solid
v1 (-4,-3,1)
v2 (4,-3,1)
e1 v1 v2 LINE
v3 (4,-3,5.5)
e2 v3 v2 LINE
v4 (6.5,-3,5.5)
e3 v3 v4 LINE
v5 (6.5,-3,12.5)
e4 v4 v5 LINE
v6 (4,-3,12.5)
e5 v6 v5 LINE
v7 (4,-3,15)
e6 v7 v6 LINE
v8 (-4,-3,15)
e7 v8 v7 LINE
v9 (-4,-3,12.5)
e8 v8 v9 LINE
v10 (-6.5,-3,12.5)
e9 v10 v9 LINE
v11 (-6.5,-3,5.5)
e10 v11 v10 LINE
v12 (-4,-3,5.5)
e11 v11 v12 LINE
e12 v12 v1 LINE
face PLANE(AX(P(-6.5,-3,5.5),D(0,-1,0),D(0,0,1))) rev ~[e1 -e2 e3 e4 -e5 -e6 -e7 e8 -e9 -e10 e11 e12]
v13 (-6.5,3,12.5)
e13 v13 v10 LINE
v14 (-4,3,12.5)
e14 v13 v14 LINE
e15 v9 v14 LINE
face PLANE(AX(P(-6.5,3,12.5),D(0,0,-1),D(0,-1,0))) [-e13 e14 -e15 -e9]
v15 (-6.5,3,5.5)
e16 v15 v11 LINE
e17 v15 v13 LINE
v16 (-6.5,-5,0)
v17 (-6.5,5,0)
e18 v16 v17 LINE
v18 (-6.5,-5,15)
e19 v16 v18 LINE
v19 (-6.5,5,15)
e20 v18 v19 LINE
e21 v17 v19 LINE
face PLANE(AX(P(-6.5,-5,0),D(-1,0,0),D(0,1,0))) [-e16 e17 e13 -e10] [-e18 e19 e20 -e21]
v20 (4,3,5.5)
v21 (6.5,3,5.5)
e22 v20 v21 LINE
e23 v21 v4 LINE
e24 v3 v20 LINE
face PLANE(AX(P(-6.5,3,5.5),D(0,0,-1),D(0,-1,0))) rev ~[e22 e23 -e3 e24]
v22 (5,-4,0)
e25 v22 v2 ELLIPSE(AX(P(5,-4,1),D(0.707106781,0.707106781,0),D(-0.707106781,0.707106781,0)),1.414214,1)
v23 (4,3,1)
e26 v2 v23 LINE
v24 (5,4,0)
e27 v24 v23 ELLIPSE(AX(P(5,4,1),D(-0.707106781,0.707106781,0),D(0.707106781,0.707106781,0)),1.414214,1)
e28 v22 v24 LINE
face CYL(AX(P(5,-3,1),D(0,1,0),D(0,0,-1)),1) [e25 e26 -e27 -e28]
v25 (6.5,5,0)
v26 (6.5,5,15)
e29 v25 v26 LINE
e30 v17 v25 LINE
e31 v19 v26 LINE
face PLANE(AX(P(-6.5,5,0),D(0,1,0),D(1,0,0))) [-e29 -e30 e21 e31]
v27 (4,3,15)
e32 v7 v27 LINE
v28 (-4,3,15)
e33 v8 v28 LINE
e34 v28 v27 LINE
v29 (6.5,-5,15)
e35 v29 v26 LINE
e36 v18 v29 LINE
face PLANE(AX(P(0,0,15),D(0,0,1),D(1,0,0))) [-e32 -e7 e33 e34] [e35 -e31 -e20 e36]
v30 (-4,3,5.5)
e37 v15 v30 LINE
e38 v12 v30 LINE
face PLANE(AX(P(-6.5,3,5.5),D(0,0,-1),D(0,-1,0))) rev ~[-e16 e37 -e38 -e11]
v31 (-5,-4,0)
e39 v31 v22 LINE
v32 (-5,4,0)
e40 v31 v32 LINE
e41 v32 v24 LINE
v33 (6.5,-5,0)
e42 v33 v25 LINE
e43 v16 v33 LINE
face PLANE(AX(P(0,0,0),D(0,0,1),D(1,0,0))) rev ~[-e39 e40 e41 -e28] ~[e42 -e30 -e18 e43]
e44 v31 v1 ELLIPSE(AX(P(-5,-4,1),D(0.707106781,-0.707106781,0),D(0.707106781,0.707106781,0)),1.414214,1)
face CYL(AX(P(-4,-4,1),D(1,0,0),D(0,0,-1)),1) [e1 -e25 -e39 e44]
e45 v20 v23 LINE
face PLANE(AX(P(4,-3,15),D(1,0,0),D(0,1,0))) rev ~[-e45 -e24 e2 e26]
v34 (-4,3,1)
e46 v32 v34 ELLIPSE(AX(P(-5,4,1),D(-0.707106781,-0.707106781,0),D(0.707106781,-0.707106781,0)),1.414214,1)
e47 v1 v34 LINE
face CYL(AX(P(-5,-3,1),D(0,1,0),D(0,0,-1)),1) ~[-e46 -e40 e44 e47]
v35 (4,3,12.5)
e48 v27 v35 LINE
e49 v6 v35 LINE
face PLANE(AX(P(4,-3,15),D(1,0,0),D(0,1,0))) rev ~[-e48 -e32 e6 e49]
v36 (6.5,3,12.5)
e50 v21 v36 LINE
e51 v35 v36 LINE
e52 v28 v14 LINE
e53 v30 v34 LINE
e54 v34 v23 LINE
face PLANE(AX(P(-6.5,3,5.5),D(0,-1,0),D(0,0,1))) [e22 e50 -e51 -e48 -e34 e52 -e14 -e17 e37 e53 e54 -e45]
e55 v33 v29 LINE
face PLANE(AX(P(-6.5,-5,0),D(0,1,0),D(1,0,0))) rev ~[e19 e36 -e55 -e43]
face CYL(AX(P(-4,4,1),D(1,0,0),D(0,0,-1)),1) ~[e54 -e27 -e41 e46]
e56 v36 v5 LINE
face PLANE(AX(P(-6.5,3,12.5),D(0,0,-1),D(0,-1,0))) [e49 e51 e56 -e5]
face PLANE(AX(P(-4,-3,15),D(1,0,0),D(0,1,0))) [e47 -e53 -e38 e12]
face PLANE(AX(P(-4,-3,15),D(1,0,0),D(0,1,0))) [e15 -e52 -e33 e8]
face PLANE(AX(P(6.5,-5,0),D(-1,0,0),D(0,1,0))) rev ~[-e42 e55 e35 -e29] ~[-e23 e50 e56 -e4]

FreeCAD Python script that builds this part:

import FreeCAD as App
import Part
import Sketcher
from FreeCAD import Vector
Q = App.Units.Quantity


def edges_at(feature, points):
    """Names of the edges that pass closest to the given points."""
    edges = feature.Shape.Edges
    near = lambda p: min(range(len(edges)), key=lambda i: edges[i].distToShape(Part.Vertex(*p))[0])
    return sorted({f"Edge{near(p) + 1}" for p in points})

doc = App.newDocument("Part")
params = doc.addObject("Spreadsheet::Sheet", "Params")
for row, (alias, value) in enumerate([
    ("sketch1_width", "13 mm"),
    ("sketch1_height", "10 mm"),
    ("pad1_length", "15 mm"),
    ("sketch2_width", "8 mm"),
    ("sketch2_height", "6 mm"),
    ("pocket1_length", "25 mm"),
    ("sketch3_width", "6 mm"),
    ("sketch3_height", "7 mm"),
    ("pocket2_length", "13 mm"),
    ("fillet_radius", "1 mm"),
], start=1):
    params.set(f"A{row}", alias)
    params.set(f"B{row}", "=" + value)
    params.setAlias(f"B{row}", alias)

body = doc.addObject("PartDesign::Body", "Body")

# Sketch on XY plane
sketch1 = body.newObject("Sketcher::SketchObject", "Sketch")
sketch1.AttachmentSupport = (doc.getObject("XY_Plane"), [""])
sketch1.MapMode = "FlatFace"
sketch1.addGeometry(Part.LineSegment(Vector(-6.5, 5, 0), Vector(-6.5, -5, 0)), False)
sketch1.addGeometry(Part.LineSegment(Vector(-6.5, -5, 0), Vector(6.5, -5, 0)), False)
sketch1.addGeometry(Part.LineSegment(Vector(6.5, -5, 0), Vector(6.5, 5, 0)), False)
sketch1.addGeometry(Part.LineSegment(Vector(6.5, 5, 0), Vector(-6.5, 5, 0)), False)
sketch1.addConstraint(Sketcher.Constraint("Coincident", 0, 2, 1, 1))
sketch1.addConstraint(Sketcher.Constraint("Coincident", 1, 2, 2, 1))
sketch1.addConstraint(Sketcher.Constraint("Coincident", 2, 2, 3, 1))
sketch1.addConstraint(Sketcher.Constraint("Coincident", 3, 2, 0, 1))
sketch1.addConstraint(Sketcher.Constraint("Vertical", 0))
sketch1.addConstraint(Sketcher.Constraint("Horizontal", 1))
sketch1.addConstraint(Sketcher.Constraint("Vertical", 2))
sketch1.addConstraint(Sketcher.Constraint("Horizontal", 3))
sketch1.addConstraint(Sketcher.Constraint("Symmetric", 0, 2, 2, 2, -1, 1))
sketch1.addConstraint(Sketcher.Constraint("DistanceX", 1, 1, 1, 2, Q("13 mm")))
sketch1.addConstraint(Sketcher.Constraint("DistanceY", 0, 2, 0, 1, Q("10 mm")))
sketch1.setExpression("Constraints[9]", "Params.sketch1_width")
sketch1.setExpression("Constraints[10]", "Params.sketch1_height")
pad1 = body.newObject("PartDesign::Pad", "Pad")
pad1.Profile = sketch1
pad1.setExpression("Length", "Params.pad1_length")

# Sketch on XY plane
sketch2 = body.newObject("Sketcher::SketchObject", "Sketch001")
sketch2.AttachmentSupport = (doc.getObject("XY_Plane"), [""])
sketch2.MapMode = "FlatFace"
sketch2.AttachmentOffset = App.Placement(Vector(0, 0, 15), App.Rotation())
sketch2.addGeometry(Part.LineSegment(Vector(-4, 3, 0), Vector(-4, -3, 0)), False)
sketch2.addGeometry(Part.LineSegment(Vector(-4, -3, 0), Vector(4, -3, 0)), False)
sketch2.addGeometry(Part.LineSegment(Vector(4, -3, 0), Vector(4, 3, 0)), False)
sketch2.addGeometry(Part.LineSegment(Vector(4, 3, 0), Vector(-4, 3, 0)), False)
sketch2.addConstraint(Sketcher.Constraint("Coincident", 0, 2, 1, 1))
sketch2.addConstraint(Sketcher.Constraint("Coincident", 1, 2, 2, 1))
sketch2.addConstraint(Sketcher.Constraint("Coincident", 2, 2, 3, 1))
sketch2.addConstraint(Sketcher.Constraint("Coincident", 3, 2, 0, 1))
sketch2.addConstraint(Sketcher.Constraint("Vertical", 0))
sketch2.addConstraint(Sketcher.Constraint("Horizontal", 1))
sketch2.addConstraint(Sketcher.Constraint("Vertical", 2))
sketch2.addConstraint(Sketcher.Constraint("Horizontal", 3))
sketch2.addConstraint(Sketcher.Constraint("Symmetric", 0, 2, 2, 2, -1, 1))
sketch2.addConstraint(Sketcher.Constraint("DistanceX", 1, 1, 1, 2, Q("8 mm")))
sketch2.addConstraint(Sketcher.Constraint("DistanceY", 0, 2, 0, 1, Q("6 mm")))
sketch2.setExpression("Constraints[9]", "Params.sketch2_width")
sketch2.setExpression("Constraints[10]", "Params.sketch2_height")
pocket1 = body.newObject("PartDesign::Pocket", "Pocket")
pocket1.Profile = sketch2
pocket1.setExpression("Length", "Params.pocket1_length")

# Sketch on YZ plane
sketch3 = body.newObject("Sketcher::SketchObject", "Sketch002")
sketch3.AttachmentSupport = (doc.getObject("YZ_Plane"), [""])
sketch3.MapMode = "FlatFace"
sketch3.AttachmentOffset = App.Placement(Vector(0, 0, -6.5), App.Rotation())
sketch3.addGeometry(Part.LineSegment(Vector(3, 12.5, 0), Vector(3, 5.5, 0)), False)
sketch3.addGeometry(Part.LineSegment(Vector(3, 5.5, 0), Vector(-3, 5.5, 0)), False)
sketch3.addGeometry(Part.LineSegment(Vector(-3, 5.5, 0), Vector(-3, 12.5, 0)), False)
sketch3.addGeometry(Part.LineSegment(Vector(-3, 12.5, 0), Vector(3, 12.5, 0)), False)
sketch3.addConstraint(Sketcher.Constraint("Coincident", 0, 2, 1, 1))
sketch3.addConstraint(Sketcher.Constraint("Coincident", 1, 2, 2, 1))
sketch3.addConstraint(Sketcher.Constraint("Coincident", 2, 2, 3, 1))
sketch3.addConstraint(Sketcher.Constraint("Coincident", 3, 2, 0, 1))
sketch3.addConstraint(Sketcher.Constraint("Vertical", 0))
sketch3.addConstraint(Sketcher.Constraint("Horizontal", 1))
sketch3.addConstraint(Sketcher.Constraint("Vertical", 2))
sketch3.addConstraint(Sketcher.Constraint("Horizontal", 3))
sketch3.addConstraint(Sketcher.Constraint("DistanceX", 1, 2, 1, 1, Q("6 mm")))
sketch3.addConstraint(Sketcher.Constraint("DistanceY", 0, 2, 0, 1, Q("7 mm")))
sketch3.addConstraint(Sketcher.Constraint("DistanceX", -1, 1, 0, 2, Q("3 mm")))
sketch3.addConstraint(Sketcher.Constraint("DistanceY", -1, 1, 0, 2, Q("5.5 mm")))
sketch3.setExpression("Constraints[8]", "Params.sketch3_width")
sketch3.setExpression("Constraints[9]", "Params.sketch3_height")
pocket2 = body.newObject("PartDesign::Pocket", "Pocket001")
pocket2.Profile = sketch3
pocket2.setExpression("Length", "Params.pocket2_length")
pocket2.Reversed = True
doc.recompute()

fillet = body.newObject("PartDesign::Fillet", "Fillet")
fillet.Base = (pocket2, edges_at(pocket2, [
    (4, 0, 0),
    (0, 3, 0),
    (-4, 0, 0),
    (0, -3, 0),
]))
fillet.setExpression("Radius", "Params.fillet_radius")

doc.recompute()
